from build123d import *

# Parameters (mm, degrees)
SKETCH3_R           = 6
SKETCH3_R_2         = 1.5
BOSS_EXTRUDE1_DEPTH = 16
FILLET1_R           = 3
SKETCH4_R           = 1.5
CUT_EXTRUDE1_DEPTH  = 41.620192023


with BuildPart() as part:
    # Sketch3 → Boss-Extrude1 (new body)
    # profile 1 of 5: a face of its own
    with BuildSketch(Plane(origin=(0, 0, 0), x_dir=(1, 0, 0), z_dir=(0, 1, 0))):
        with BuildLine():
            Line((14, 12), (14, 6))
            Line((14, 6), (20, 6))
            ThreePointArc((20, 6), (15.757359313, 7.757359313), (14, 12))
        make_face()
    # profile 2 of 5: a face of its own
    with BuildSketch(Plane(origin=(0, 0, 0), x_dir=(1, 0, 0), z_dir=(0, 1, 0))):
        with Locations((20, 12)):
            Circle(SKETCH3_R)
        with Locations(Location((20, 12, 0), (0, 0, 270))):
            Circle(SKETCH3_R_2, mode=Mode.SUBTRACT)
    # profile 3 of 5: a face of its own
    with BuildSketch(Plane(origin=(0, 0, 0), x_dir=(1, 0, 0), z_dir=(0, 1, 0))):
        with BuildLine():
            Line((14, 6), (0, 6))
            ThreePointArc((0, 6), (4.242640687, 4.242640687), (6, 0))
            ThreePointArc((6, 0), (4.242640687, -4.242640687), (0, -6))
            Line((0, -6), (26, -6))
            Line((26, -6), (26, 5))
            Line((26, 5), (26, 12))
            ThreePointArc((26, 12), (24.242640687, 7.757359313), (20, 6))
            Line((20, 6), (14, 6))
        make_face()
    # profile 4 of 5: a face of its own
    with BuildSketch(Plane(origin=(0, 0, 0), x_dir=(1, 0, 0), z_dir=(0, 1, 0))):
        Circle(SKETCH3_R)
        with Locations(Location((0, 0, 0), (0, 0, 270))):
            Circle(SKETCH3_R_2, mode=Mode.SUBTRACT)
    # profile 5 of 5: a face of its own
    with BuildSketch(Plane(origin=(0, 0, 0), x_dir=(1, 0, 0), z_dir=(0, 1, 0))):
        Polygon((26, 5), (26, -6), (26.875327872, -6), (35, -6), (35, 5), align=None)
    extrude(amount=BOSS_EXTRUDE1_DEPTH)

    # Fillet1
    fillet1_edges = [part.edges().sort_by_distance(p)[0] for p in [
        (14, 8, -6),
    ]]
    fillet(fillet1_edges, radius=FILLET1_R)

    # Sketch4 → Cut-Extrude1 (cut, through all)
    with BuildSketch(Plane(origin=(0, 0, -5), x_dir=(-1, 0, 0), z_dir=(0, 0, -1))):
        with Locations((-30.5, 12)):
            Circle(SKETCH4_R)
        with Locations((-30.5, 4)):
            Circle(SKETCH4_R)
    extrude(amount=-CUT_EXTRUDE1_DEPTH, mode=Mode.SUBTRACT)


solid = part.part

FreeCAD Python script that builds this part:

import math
import FreeCAD as App
import Part
import Sketcher
from FreeCAD import Vector
Q = App.Units.Quantity


def edges_at(feature, points):
    """Names of the edges that pass closest to the given points."""
    edges = feature.Shape.Edges
    near = lambda p: min(range(len(edges)), key=lambda i: edges[i].distToShape(Part.Vertex(*p))[0])
    return sorted({f"Edge{near(p) + 1}" for p in points})

doc = App.newDocument("Part")
body = doc.addObject("PartDesign::Body", "Body")

sketch1 = doc.addObject("Sketcher::SketchObject", "Sketch")
body.addObject(sketch1)
sketch1.AttachmentSupport = (doc.XZ_Plane, [""])
sketch1.MapMode = "FlatFace"
sketch1.addGeometry(Part.LineSegment(Vector(14, -12, 0), Vector(14, -6, 0)), False)
sketch1.addGeometry(Part.LineSegment(Vector(14, -6, 0), Vector(0, -6, 0)), False)
sketch1.addGeometry(Part.ArcOfCircle(Part.Circle(Vector(0, 0, 0), Vector(0, 0, 1), 6), math.radians(90), math.radians(270)), False)
sketch1.addGeometry(Part.LineSegment(Vector(0, 6, 0), Vector(35, 6, 0)), False)
sketch1.addGeometry(Part.LineSegment(Vector(35, 6, 0), Vector(35, -5, 0)), False)
sketch1.addGeometry(Part.LineSegment(Vector(35, -5, 0), Vector(26, -5, 0)), False)
sketch1.addGeometry(Part.LineSegment(Vector(26, -5, 0), Vector(26, -12, 0)), False)
sketch1.addGeometry(Part.ArcOfCircle(Part.Circle(Vector(20, -12, 0), Vector(0, 0, 1), 6), math.radians(180), math.radians(360)), False)
sketch1.addGeometry(Part.Circle(Vector(20, -12, 0), Vector(0, 0, 1), 1.5), False)
sketch1.addGeometry(Part.Circle(Vector(0, 0, 0), Vector(0, 0, 1), 1.5), False)
sketch1.addConstraint(Sketcher.Constraint("Coincident", 0, 2, 1, 1))
sketch1.addConstraint(Sketcher.Constraint("Tangent", 1, 2, 2, 2))
sketch1.addConstraint(Sketcher.Constraint("Tangent", 2, 1, 3, 1))
sketch1.addConstraint(Sketcher.Constraint("Coincident", 3, 2, 4, 1))
sketch1.addConstraint(Sketcher.Constraint("Coincident", 4, 2, 5, 1))
sketch1.addConstraint(Sketcher.Constraint("Coincident", 5, 2, 6, 1))
sketch1.addConstraint(Sketcher.Constraint("Tangent", 6, 2, 7, 2))
sketch1.addConstraint(Sketcher.Constraint("Tangent", 7, 1, 0, 1))
sketch1.addConstraint(Sketcher.Constraint("Vertical", 0))
sketch1.addConstraint(Sketcher.Constraint("Horizontal", 1))
sketch1.addConstraint(Sketcher.Constraint("Horizontal", 3))
sketch1.addConstraint(Sketcher.Constraint("Vertical", 4))
sketch1.addConstraint(Sketcher.Constraint("Horizontal", 5))
sketch1.addConstraint(Sketcher.Constraint("Vertical", 6))
sketch1.addConstraint(Sketcher.Constraint("Coincident", 2, 3, -1, 1))
sketch1.addConstraint(Sketcher.Constraint("Coincident", 9, 3, -1, 1))
sketch1.addConstraint(Sketcher.Constraint("Coincident", 8, 3, 7, 3))
sketch1.addConstraint(Sketcher.Constraint("Equal", 2, 7))
sketch1.addConstraint(Sketcher.Constraint("Equal", 8, 9))
sketch1.addConstraint(Sketcher.Constraint("Diameter", 8, Q("3 mm")))
sketch1.addConstraint(Sketcher.Constraint("Radius", 2, Q("6 mm")))
sketch1.addConstraint(Sketcher.Constraint("DistanceX", 1, 2, 1, 1, Q("14 mm")))
sketch1.addConstraint(Sketcher.Constraint("DistanceX", 3, 1, 3, 2, Q("35 mm")))
sketch1.addConstraint(Sketcher.Constraint("DistanceY", 0, 1, 0, 2, Q("6 mm")))
sketch1.addConstraint(Sketcher.Constraint("DistanceY", 4, 2, 4, 1, Q("11 mm")))
pad1 = doc.addObject("PartDesign::Pad", "Pad")
body.addObject(pad1)
pad1.Profile = sketch1
pad1.Length = 16
pad1.Reversed = True
doc.recompute()

fillet = doc.addObject("PartDesign::Fillet", "Fillet")
body.addObject(fillet)
fillet.Base = (pad1, edges_at(pad1, [(14, 8, -6)]))
fillet.Radius = 3

sketch2 = doc.addObject("Sketcher::SketchObject", "Sketch001")
body.addObject(sketch2)
sketch2.AttachmentSupport = (doc.XY_Plane, [""])
sketch2.MapMode = "FlatFace"
sketch2.AttachmentOffset = App.Placement(Vector(0, 0, -5), App.Rotation())
sketch2.addGeometry(Part.Circle(Vector(30.5, 12, 0), Vector(0, 0, 1), 1.5), False)
sketch2.addGeometry(Part.Circle(Vector(30.5, 4, 0), Vector(0, 0, 1), 1.5), False)
sketch2.addConstraint(Sketcher.Constraint("Equal", 0, 1))
sketch2.addConstraint(Sketcher.Constraint("Vertical", 0, 3, 1, 3))
sketch2.addConstraint(Sketcher.Constraint("Diameter", 0, Q("3 mm")))
sketch2.addConstraint(Sketcher.Constraint("DistanceY", -1, 1, 0, 3, Q("12 mm")))
sketch2.addConstraint(Sketcher.Constraint("DistanceY", -1, 1, 1, 3, Q("4 mm")))
sketch2.addConstraint(Sketcher.Constraint("DistanceX", -1, 1, 0, 3, Q("30.5 mm")))
pocket1 = doc.addObject("PartDesign::Pocket", "Pocket")
body.addObject(pocket1)
pocket1.Profile = sketch2
pocket1.Type = "ThroughAll"
pocket1.Reversed = True

doc.recompute()
